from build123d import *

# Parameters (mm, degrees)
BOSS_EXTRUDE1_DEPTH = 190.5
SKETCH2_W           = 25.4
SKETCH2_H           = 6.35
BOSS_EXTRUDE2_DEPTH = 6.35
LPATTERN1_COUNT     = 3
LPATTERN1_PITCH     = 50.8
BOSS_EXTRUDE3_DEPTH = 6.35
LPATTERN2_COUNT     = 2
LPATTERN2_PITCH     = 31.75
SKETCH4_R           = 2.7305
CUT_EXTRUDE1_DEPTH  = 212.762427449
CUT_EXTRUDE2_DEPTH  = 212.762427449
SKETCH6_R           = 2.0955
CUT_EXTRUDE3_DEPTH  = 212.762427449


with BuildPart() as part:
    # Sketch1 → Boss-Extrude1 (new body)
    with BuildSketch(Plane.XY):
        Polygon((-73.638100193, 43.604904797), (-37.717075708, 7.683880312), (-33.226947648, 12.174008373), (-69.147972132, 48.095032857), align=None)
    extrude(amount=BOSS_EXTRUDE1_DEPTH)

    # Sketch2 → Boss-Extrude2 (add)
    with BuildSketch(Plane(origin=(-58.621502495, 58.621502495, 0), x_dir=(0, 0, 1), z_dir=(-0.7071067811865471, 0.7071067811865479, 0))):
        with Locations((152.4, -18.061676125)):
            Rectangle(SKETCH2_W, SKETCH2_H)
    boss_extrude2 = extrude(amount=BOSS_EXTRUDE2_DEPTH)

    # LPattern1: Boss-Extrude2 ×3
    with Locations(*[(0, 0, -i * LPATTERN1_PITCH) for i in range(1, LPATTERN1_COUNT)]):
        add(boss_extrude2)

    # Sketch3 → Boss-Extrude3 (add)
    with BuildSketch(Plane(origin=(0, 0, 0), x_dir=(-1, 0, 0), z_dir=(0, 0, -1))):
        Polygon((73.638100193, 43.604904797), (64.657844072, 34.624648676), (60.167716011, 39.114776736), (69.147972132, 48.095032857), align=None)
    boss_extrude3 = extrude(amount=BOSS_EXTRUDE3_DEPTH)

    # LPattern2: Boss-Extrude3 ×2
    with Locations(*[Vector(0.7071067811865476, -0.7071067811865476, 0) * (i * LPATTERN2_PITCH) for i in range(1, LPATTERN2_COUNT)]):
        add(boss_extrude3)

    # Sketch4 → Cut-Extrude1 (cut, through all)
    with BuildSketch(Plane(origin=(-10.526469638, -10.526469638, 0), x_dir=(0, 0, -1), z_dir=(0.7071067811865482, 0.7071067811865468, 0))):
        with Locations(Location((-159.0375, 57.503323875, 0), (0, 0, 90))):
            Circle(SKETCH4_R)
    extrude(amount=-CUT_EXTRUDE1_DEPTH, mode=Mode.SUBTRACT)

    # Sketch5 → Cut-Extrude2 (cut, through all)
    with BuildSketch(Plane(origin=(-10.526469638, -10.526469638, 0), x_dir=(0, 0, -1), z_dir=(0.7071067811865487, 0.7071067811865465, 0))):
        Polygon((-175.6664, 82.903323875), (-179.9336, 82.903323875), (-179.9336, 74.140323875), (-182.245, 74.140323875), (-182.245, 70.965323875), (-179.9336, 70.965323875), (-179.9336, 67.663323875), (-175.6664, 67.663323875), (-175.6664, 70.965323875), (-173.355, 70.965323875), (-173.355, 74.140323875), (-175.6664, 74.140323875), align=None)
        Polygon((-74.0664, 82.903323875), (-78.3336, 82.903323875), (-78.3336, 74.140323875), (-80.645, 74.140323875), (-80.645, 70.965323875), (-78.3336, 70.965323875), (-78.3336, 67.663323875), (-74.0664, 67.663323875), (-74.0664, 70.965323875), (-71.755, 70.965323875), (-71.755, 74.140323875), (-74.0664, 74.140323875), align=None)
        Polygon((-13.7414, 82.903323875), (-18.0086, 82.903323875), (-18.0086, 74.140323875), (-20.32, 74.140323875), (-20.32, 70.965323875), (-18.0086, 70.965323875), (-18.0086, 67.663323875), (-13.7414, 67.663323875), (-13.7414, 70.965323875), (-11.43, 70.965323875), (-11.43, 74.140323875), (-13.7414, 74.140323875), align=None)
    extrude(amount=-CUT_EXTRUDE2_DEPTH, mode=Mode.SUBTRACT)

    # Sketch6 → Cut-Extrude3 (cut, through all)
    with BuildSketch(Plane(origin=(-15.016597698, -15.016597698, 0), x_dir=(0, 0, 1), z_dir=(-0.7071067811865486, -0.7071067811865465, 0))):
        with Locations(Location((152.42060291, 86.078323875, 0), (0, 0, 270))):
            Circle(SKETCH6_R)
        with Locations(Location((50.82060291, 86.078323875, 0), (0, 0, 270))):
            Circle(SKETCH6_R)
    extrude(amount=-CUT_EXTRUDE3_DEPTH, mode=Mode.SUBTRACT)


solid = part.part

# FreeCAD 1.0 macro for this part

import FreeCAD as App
import Part
import Sketcher
from FreeCAD import Vector
Q = App.Units.Quantity


def add_polygon(sketch, points):
    """Adds a closed chain of lines whose ends are joined by coincident constraints."""
    first, n = sketch.GeometryCount, len(points)
    for a, b in zip(points, points[1:] + points[:1]):
        sketch.addGeometry(Part.LineSegment(App.Vector(*a, 0), App.Vector(*b, 0)), False)
    for i in range(n):
        sketch.addConstraint(Sketcher.Constraint("Coincident", first + i, 2, first + (i + 1) % n, 1))

doc = App.newDocument("Part")
body = doc.addObject("PartDesign::Body", "Body")

sketch1 = body.newObject("Sketcher::SketchObject", "Sketch")
sketch1.AttachmentSupport = (doc.getObject("XY_Plane"), [""])
sketch1.MapMode = "FlatFace"
add_polygon(sketch1, [(-73.6381, 43.604905), (-37.717076, 7.68388), (-33.226948, 12.174008), (-69.147972, 48.095033)])
sketch1.addConstraint([
    Sketcher.Constraint("Perpendicular", 0, 1),
    Sketcher.Constraint("Perpendicular", 1, 2),
    Sketcher.Constraint("Perpendicular", 2, 3),
    Sketcher.Constraint("Distance", 0, Q("2 in")),
    Sketcher.Constraint("Angle", 0, Q("-45 deg")),
    Sketcher.Constraint("Distance", 1, Q("0.25 in")),
    Sketcher.Constraint("DistanceX", 3, 2, -1, 1, 73.6381),
    Sketcher.Constraint("DistanceY", -1, 1, 0, 2, 7.68388),
])
pad1 = body.newObject("PartDesign::Pad", "Pad")
pad1.Profile = sketch1
pad1.Length = Q("7.5 in")

sketch2 = body.newObject("Sketcher::SketchObject", "Sketch001")
sketch2.Placement = App.Placement(Vector(-58.621502, 58.621502, 0), App.Rotation(Vector(0, 0, 1), Vector(0.707106781, 0.707106781, 0), Vector(-0.707106781, 0.707106781, 0), "ZXY"))
add_polygon(sketch2, [(139.7, -14.886676), (139.7, -21.236676), (165.1, -21.236676), (165.1, -14.886676)])
sketch2.addConstraint([
    Sketcher.Constraint("Vertical", 0),
    Sketcher.Constraint("Horizontal", 1),
    Sketcher.Constraint("Vertical", 2),
    Sketcher.Constraint("Horizontal", 3),
    Sketcher.Constraint("DistanceX", 1, 1, 1, 2, Q("1 in")),
    Sketcher.Constraint("DistanceY", 0, 2, 0, 1, Q("0.25 in")),
    Sketcher.Constraint("DistanceX", -1, 1, 0, 2, Q("5.5 in")),
    Sketcher.Constraint("DistanceY", 0, 2, -1, 1, 21.236676),
])
pad2 = body.newObject("PartDesign::Pad", "Pad001")
pad2.Profile = sketch2
pad2.Length = Q("0.25 in")
doc.recompute()

linearpattern = body.newObject("PartDesign::LinearPattern", "LinearPattern")
linearpattern.Originals = [pad2]
linearpattern.Direction = (doc.getObject("Z_Axis"), [""])
linearpattern.Mode = "offset"
linearpattern.Offset = Q("2 in")
linearpattern.Occurrences = 3
linearpattern.Reversed = True
body.Tip = linearpattern

sketch3 = body.newObject("Sketcher::SketchObject", "Sketch002")
sketch3.AttachmentSupport = (doc.getObject("XY_Plane"), [""])
sketch3.MapMode = "FlatFace"
add_polygon(sketch3, [(-64.657844, 34.624649), (-73.6381, 43.604905), (-69.147972, 48.095033), (-60.167716, 39.114777)])
sketch3.addConstraint([
    Sketcher.Constraint("Perpendicular", 0, 1),
    Sketcher.Constraint("Perpendicular", 1, 2),
    Sketcher.Constraint("Perpendicular", 2, 3),
    Sketcher.Constraint("Angle", 0, Q("135 deg")),
    Sketcher.Constraint("Distance", 0, Q("0.5 in")),
    Sketcher.Constraint("Distance", 1, Q("0.25 in")),
    Sketcher.Constraint("DistanceX", 0, 2, -1, 1, 73.6381),
    Sketcher.Constraint("DistanceY", -1, 1, 3, 2, 34.624649),
])
pad3 = body.newObject("PartDesign::Pad", "Pad002")
pad3.Profile = sketch3
pad3.Length = Q("0.25 in")
pad3.Reversed = True
doc.recompute()

datumline = body.newObject("PartDesign::Line", "DatumLine")
datumline.Placement = App.Placement(Vector(0, 0, 0), App.Rotation(Vector(0, 0, 1), Vector(0.707106781, -0.707106781, 0)))
linearpattern2 = body.newObject("PartDesign::LinearPattern", "LinearPattern001")
linearpattern2.Originals = [pad3]
linearpattern2.Direction = (datumline, [""])
linearpattern2.Mode = "offset"
linearpattern2.Offset = Q("1.25 in")
linearpattern2.Occurrences = 2
body.Tip = linearpattern2

sketch4 = body.newObject("Sketcher::SketchObject", "Sketch003")
sketch4.Placement = App.Placement(Vector(-10.52647, -10.52647, 0), App.Rotation(Vector(0, 0, -1), Vector(-0.707106781, 0.707106781, 0), Vector(0.707106781, 0.707106781, 0), "ZXY"))
sketch4.addGeometry(Part.Circle(Vector(-159.0375, 57.503324, 0), Vector(0, 0, 1), 2.7305), False)
sketch4.addConstraint([
    Sketcher.Constraint("Diameter", 0, Q("0.215 in")),
    Sketcher.Constraint("DistanceX", 0, 3, -1, 1, 159.0375),
    Sketcher.Constraint("DistanceY", -1, 1, 0, 3, 57.503324),
])
pocket1 = body.newObject("PartDesign::Pocket", "Pocket")
pocket1.Profile = sketch4
pocket1.Type = "ThroughAll"

sketch5 = body.newObject("Sketcher::SketchObject", "Sketch004")
sketch5.Placement = App.Placement(Vector(-10.52647, -10.52647, 0), App.Rotation(Vector(0, 0, -1), Vector(-0.707106781, 0.707106781, 0), Vector(0.707106781, 0.707106781, 0), "ZXY"))
add_polygon(sketch5, [(-175.6664, 82.903324), (-179.9336, 82.903324), (-179.9336, 74.140324), (-182.245, 74.140324), (-182.245, 70.965324), (-179.9336, 70.965324), (-179.9336, 67.663324), (-175.6664, 67.663324), (-175.6664, 70.965324), (-173.355, 70.965324), (-173.355, 74.140324), (-175.6664, 74.140324)])
add_polygon(sketch5, [(-74.0664, 82.903324), (-78.3336, 82.903324), (-78.3336, 74.140324), (-80.645, 74.140324), (-80.645, 70.965324), (-78.3336, 70.965324), (-78.3336, 67.663324), (-74.0664, 67.663324), (-74.0664, 70.965324), (-71.755, 70.965324), (-71.755, 74.140324), (-74.0664, 74.140324)])
add_polygon(sketch5, [(-13.7414, 82.903324), (-18.0086, 82.903324), (-18.0086, 74.140324), (-20.32, 74.140324), (-20.32, 70.965324), (-18.0086, 70.965324), (-18.0086, 67.663324), (-13.7414, 67.663324), (-13.7414, 70.965324), (-11.43, 70.965324), (-11.43, 74.140324), (-13.7414, 74.140324)])
sketch5.addConstraint([
    Sketcher.Constraint("Horizontal", 0),
    Sketcher.Constraint("Vertical", 1),
    Sketcher.Constraint("Horizontal", 2),
    Sketcher.Constraint("Vertical", 3),
    Sketcher.Constraint("Horizontal", 4),
    Sketcher.Constraint("Vertical", 5),
    Sketcher.Constraint("Horizontal", 6),
    Sketcher.Constraint("Vertical", 7),
    Sketcher.Constraint("Horizontal", 8),
    Sketcher.Constraint("Vertical", 9),
    Sketcher.Constraint("Horizontal", 10),
    Sketcher.Constraint("Vertical", 11),
    Sketcher.Constraint("Horizontal", 12),
    Sketcher.Constraint("Vertical", 13),
    Sketcher.Constraint("Horizontal", 14),
    Sketcher.Constraint("Vertical", 15),
    Sketcher.Constraint("Horizontal", 16),
    Sketcher.Constraint("Vertical", 17),
    Sketcher.Constraint("Horizontal", 18),
    Sketcher.Constraint("Vertical", 19),
    Sketcher.Constraint("Horizontal", 20),
    Sketcher.Constraint("Vertical", 21),
    Sketcher.Constraint("Horizontal", 22),
    Sketcher.Constraint("Vertical", 23),
    Sketcher.Constraint("Horizontal", 24),
    Sketcher.Constraint("Vertical", 25),
    Sketcher.Constraint("Horizontal", 26),
    Sketcher.Constraint("Vertical", 27),
    Sketcher.Constraint("Horizontal", 28),
    Sketcher.Constraint("Vertical", 29),
    Sketcher.Constraint("Horizontal", 30),
    Sketcher.Constraint("Vertical", 31),
    Sketcher.Constraint("Horizontal", 32),
    Sketcher.Constraint("Vertical", 33),
    Sketcher.Constraint("Horizontal", 34),
    Sketcher.Constraint("Vertical", 35),
    Sketcher.Constraint("Horizontal", 4, 2, 7, 2),
    Sketcher.Constraint("Horizontal", 2, 2, 9, 2),
    Sketcher.Constraint("Horizontal", 11, 2, 12, 2),
    Sketcher.Constraint("Horizontal", 10, 2, 13, 2),
    Sketcher.Constraint("Horizontal", 8, 2, 15, 2),
    Sketcher.Constraint("Horizontal", 6, 2, 17, 2),
    Sketcher.Constraint("Horizontal", 16, 2, 19, 2),
    Sketcher.Constraint("Horizontal", 14, 2, 21, 2),
    Sketcher.Constraint("Horizontal", 23, 2, 24, 2),
    Sketcher.Constraint("Horizontal", 22, 2, 25, 2),
    Sketcher.Constraint("Horizontal", 20, 2, 27, 2),
    Sketcher.Constraint("Horizontal", 18, 2, 29, 2),
    Sketcher.Constraint("Horizontal", 28, 2, 31, 2),
    Sketcher.Constraint("Horizontal", 26, 2, 33, 2),
    Sketcher.Constraint("Vertical", 1, 2, 4, 2),
    Sketcher.Constraint("Vertical", 7, 2, 10, 2),
    Sketcher.Constraint("Vertical", 13, 2, 16, 2),
    Sketcher.Constraint("Vertical", 19, 2, 22, 2),
    Sketcher.Constraint("Vertical", 25, 2, 28, 2),
    Sketcher.Constraint("Vertical", 31, 2, 34, 2),
    Sketcher.Constraint("Equal", 4, 8),
    Sketcher.Constraint("Equal", 6, 12),
    Sketcher.Constraint("Equal", 10, 14),
    Sketcher.Constraint("Equal", 16, 20),
    Sketcher.Constraint("Equal", 18, 24),
    Sketcher.Constraint("Equal", 22, 26),
    Sketcher.Constraint("Equal", 28, 32),
    Sketcher.Constraint("DistanceY", 5, 2, 5, 1, Q("0.13 in")),
    Sketcher.Constraint("DistanceX", 26, 2, -1, 1, Q("0.8 in")),
    Sketcher.Constraint("DistanceY", 5, 2, 0, 2, Q("0.6 in")),
    Sketcher.Constraint("DistanceX", 0, 2, 0, 1, Q("0.168 in")),
    Sketcher.Constraint("DistanceX", 2, 2, 2, 1, Q("0.091 in")),
    Sketcher.Constraint("DistanceY", 1, 2, 1, 1, Q("0.345 in")),
    Sketcher.Constraint("DistanceX", 9, 2, 14, 2, Q("3.65 in")),
    Sketcher.Constraint("DistanceX", 0, 2, -1, 1, Q("7.084 in")),
    Sketcher.Constraint("DistanceY", -1, 1, 0, 2, 82.903324),
])
pocket2 = body.newObject("PartDesign::Pocket", "Pocket001")
pocket2.Profile = sketch5
pocket2.Type = "ThroughAll"

sketch6 = body.newObject("Sketcher::SketchObject", "Sketch005")
sketch6.Placement = App.Placement(Vector(-15.016598, -15.016598, 0), App.Rotation(Vector(0, 0, 1), Vector(-0.707106781, 0.707106781, 0), Vector(-0.707106781, -0.707106781, 0), "ZXY"))
sketch6.addGeometry([
    Part.Circle(Vector(152.420603, 86.078324, 0), Vector(0, 0, 1), 2.0955),
    Part.Circle(Vector(50.820603, 86.078324, 0), Vector(0, 0, 1), 2.0955),
], False)
sketch6.addConstraint([
    Sketcher.Constraint("Equal", 0, 1),
    Sketcher.Constraint("Horizontal", 0, 3, 1, 3),
    Sketcher.Constraint("Diameter", 0, Q("0.165 in")),
    Sketcher.Constraint("DistanceX", 1, 3, 0, 3, Q("4 in")),
    Sketcher.Constraint("DistanceX", -1, 1, 0, 3, 152.420603),
    Sketcher.Constraint("DistanceY", -1, 1, 0, 3, 86.078324),
])
pocket3 = body.newObject("PartDesign::Pocket", "Pocket002")
pocket3.Profile = sketch6
pocket3.Type = "ThroughAll"

doc.recompute()
